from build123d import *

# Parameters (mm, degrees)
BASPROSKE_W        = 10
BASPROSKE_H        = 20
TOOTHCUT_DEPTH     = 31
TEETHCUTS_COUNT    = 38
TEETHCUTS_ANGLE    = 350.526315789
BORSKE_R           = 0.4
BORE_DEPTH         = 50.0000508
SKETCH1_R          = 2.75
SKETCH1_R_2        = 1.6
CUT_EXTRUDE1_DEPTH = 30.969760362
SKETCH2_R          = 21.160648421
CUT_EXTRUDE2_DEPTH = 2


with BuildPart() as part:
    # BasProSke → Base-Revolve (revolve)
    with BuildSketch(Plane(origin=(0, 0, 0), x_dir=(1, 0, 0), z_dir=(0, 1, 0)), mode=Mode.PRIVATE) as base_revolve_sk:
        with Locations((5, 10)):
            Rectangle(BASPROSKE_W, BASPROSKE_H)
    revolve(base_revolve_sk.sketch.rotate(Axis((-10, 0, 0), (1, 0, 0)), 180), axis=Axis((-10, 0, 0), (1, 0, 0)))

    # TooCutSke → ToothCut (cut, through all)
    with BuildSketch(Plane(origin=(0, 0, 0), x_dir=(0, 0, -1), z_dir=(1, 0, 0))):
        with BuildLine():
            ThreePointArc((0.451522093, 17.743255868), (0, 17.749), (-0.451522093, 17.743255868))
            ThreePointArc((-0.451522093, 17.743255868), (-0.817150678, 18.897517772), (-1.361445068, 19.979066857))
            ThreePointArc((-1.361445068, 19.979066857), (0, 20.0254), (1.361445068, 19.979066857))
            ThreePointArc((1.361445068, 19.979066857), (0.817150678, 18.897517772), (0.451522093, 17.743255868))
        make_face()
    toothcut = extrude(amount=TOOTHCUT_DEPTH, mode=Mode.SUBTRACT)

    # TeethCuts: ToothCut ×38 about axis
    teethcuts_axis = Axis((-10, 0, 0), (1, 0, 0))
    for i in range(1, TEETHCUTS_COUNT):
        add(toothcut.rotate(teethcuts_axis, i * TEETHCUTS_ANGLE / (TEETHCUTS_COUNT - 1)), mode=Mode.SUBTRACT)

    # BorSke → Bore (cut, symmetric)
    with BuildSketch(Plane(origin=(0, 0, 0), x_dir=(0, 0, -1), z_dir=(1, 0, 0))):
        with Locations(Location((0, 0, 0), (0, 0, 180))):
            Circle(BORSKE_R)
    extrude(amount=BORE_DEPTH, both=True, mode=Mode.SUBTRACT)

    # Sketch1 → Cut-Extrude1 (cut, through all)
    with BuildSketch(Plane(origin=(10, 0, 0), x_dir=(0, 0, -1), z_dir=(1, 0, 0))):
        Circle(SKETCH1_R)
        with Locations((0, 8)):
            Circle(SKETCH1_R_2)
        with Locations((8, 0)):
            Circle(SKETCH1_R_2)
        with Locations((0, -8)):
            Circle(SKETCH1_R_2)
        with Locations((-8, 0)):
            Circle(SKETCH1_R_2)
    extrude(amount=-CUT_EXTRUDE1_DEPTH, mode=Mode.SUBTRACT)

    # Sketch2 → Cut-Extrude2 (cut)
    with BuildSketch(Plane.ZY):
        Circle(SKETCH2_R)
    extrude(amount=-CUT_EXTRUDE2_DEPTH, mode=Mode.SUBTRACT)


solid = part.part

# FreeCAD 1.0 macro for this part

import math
import FreeCAD as App
import Part
import Sketcher

V = App.Vector
Q = App.Units.Quantity


def add_polygon(sketch, points):
    """Adds a closed chain of lines whose ends are joined by coincident constraints."""
    first, n = sketch.GeometryCount, len(points)
    for a, b in zip(points, points[1:] + points[:1]):
        sketch.addGeometry(Part.LineSegment(App.Vector(*a, 0), App.Vector(*b, 0)), False)
    for i in range(n):
        sketch.addConstraint(Sketcher.Constraint("Coincident", first + i, 2, first + (i + 1) % n, 1))

doc = App.newDocument("Part")
params = doc.addObject("Spreadsheet::Sheet", "Params")
for row, (alias, value) in enumerate([
    ("sketch1_width", "10 mm"),
    ("sketch1_height", "20 mm"),
    ("revolution_angle", "360 deg"),
    ("sketch2_radius", "7.6 mm"),
    ("sketch3_diameter", "0.8 mm"),
    ("pocket2_length", "100.000102 mm"),
    ("sketch4_diameter", "5.5 mm"),
    ("sketch4_diameter2", "3.2 mm"),
    ("pocket4_length", "2 mm"),
], start=1):
    params.set(f"A{row}", alias)
    params.set(f"B{row}", "=" + value)
    params.setAlias(f"B{row}", alias)

body = doc.addObject("PartDesign::Body", "Body")

sketch1 = body.newObject("Sketcher::SketchObject", "Sketch")
sketch1.AttachmentSupport = (doc.getObject("XZ_Plane"), [""])
sketch1.MapMode = "FlatFace"
add_polygon(sketch1, [(0, -20), (0, 0), (10, 0), (10, -20)])
sketch1.addConstraint([
    Sketcher.Constraint("Vertical", 0),
    Sketcher.Constraint("Horizontal", 1),
    Sketcher.Constraint("Vertical", 2),
    Sketcher.Constraint("Horizontal", 3),
    Sketcher.Constraint("Coincident", 0, 2, -1, 1),
    Sketcher.Constraint("DistanceX", 1, 1, 1, 2, Q("10 mm")),
    Sketcher.Constraint("DistanceY", 0, 1, 0, 2, Q("20 mm")),
])
sketch1.setExpression("Constraints[9]", "Params.sketch1_width")
sketch1.setExpression("Constraints[10]", "Params.sketch1_height")
revolution = body.newObject("PartDesign::Revolution", "Revolution")
revolution.Profile = sketch1
revolution.ReferenceAxis = (sketch1, ["H_Axis"])
revolution.setExpression("Angle", "Params.revolution_angle")

sketch2 = body.newObject("Sketcher::SketchObject", "Sketch001")
sketch2.AttachmentSupport = (doc.getObject("YZ_Plane"), [""])
sketch2.MapMode = "FlatFace"
sketch2.addGeometry([
    Part.ArcOfCircle(Part.Circle(V(0, 0, 0), V(0, 0, 1), 17.7), math.radians(-1.46), math.radians(1.46)),
    Part.ArcOfCircle(Part.Circle(V(16, -7.9, 0), V(0, 0, 1), 7.6), math.radians(58.72), math.radians(76.99)),
    Part.ArcOfCircle(Part.Circle(V(0, 0, 0), V(0, 0, 1), 20), math.radians(-3.9), math.radians(3.9)),
    Part.ArcOfCircle(Part.Circle(V(16, 7.9, 0), V(0, 0, 1), 7.6), math.radians(-76.99), math.radians(-58.72)),
], False)
sketch2.addConstraint([
    Sketcher.Constraint("Coincident", 0, 1, 1, 2),
    Sketcher.Constraint("Coincident", 1, 1, 2, 1),
    Sketcher.Constraint("Coincident", 2, 2, 3, 2),
    Sketcher.Constraint("Coincident", 3, 1, 0, 2),
    Sketcher.Constraint("Coincident", 0, 3, -1, 1),
    Sketcher.Constraint("Coincident", 2, 3, -1, 1),
    Sketcher.Constraint("Equal", 1, 3),
    Sketcher.Constraint("Symmetric", 1, 3, 3, 3, -1),
    Sketcher.Constraint("Radius", 1, Q("7.6 mm")),
    Sketcher.Constraint("Radius", 0, Q("17.749 mm")),
    Sketcher.Constraint("Radius", 2, Q("20.0254 mm")),
    Sketcher.Constraint("DistanceX", -1, 1, 1, 3, Q("16.032662 mm")),
    Sketcher.Constraint("DistanceY", 1, 3, -1, 1, Q("7.856511 mm")),
])
sketch2.setExpression("Constraints[8]", "Params.sketch2_radius")
pocket1 = body.newObject("PartDesign::Pocket", "Pocket")
pocket1.Profile = sketch2
pocket1.Type = "ThroughAll"
pocket1.Reversed = True
doc.recompute()

polarpattern = body.newObject("PartDesign::PolarPattern", "PolarPattern")
polarpattern.Originals = [pocket1]
polarpattern.Axis = (doc.getObject("X_Axis"), [""])
polarpattern.Angle = 360
polarpattern.Occurrences = 38
body.Tip = polarpattern

sketch3 = body.newObject("Sketcher::SketchObject", "Sketch002")
sketch3.AttachmentSupport = (doc.getObject("YZ_Plane"), [""])
sketch3.MapMode = "FlatFace"
sketch3.addGeometry(Part.Circle(V(0, 0, 0), V(0, 0, 1), 0.4), False)
sketch3.addConstraint([
    Sketcher.Constraint("Coincident", 0, 3, -1, 1),
    Sketcher.Constraint("Diameter", 0, Q("0.8 mm")),
])
sketch3.setExpression("Constraints[1]", "Params.sketch3_diameter")
pocket2 = body.newObject("PartDesign::Pocket", "Pocket001")
pocket2.Profile = sketch3
pocket2.setExpression("Length", "Params.pocket2_length")
pocket2.Midplane = True

sketch4 = body.newObject("Sketcher::SketchObject", "Sketch003")
sketch4.AttachmentSupport = (doc.getObject("YZ_Plane"), [""])
sketch4.MapMode = "FlatFace"
sketch4.AttachmentOffset = App.Placement(V(0, 0, 10), App.Rotation())
sketch4.addGeometry([
    Part.Circle(V(0, 0, 0), V(0, 0, 1), 2.8),
    Part.Circle(V(8, 0, 0), V(0, 0, 1), 1.6),
    Part.Circle(V(0, -8, 0), V(0, 0, 1), 1.6),
    Part.Circle(V(-8, 0, 0), V(0, 0, 1), 1.6),
    Part.Circle(V(0, 8, 0), V(0, 0, 1), 1.6),
], False)
sketch4.addConstraint([
    Sketcher.Constraint("Coincident", 0, 3, -1, 1),
    Sketcher.Constraint("Equal", 1, 2),
    Sketcher.Constraint("Equal", 2, 3),
    Sketcher.Constraint("Equal", 3, 4),
    Sketcher.Constraint("Symmetric", 1, 3, 3, 3, -1, 1),
    Sketcher.Constraint("Symmetric", 2, 3, 4, 3, -1, 1),
    Sketcher.Constraint("PointOnObject", 1, 3, -1),
    Sketcher.Constraint("PointOnObject", 2, 3, -2),
    Sketcher.Constraint("Diameter", 0, Q("5.5 mm")),
    Sketcher.Constraint("Diameter", 1, Q("3.2 mm")),
    Sketcher.Constraint("DistanceX", -1, 1, 1, 3, Q("8 mm")),
    Sketcher.Constraint("DistanceY", 2, 3, -1, 1, Q("8 mm")),
])
sketch4.setExpression("Constraints[8]", "Params.sketch4_diameter")
sketch4.setExpression("Constraints[9]", "Params.sketch4_diameter2")
pocket3 = body.newObject("PartDesign::Pocket", "Pocket002")
pocket3.Profile = sketch4
pocket3.Type = "ThroughAll"

sketch5 = body.newObject("Sketcher::SketchObject", "Sketch004")
sketch5.AttachmentSupport = (doc.getObject("YZ_Plane"), [""])
sketch5.MapMode = "FlatFace"
sketch5.addGeometry(Part.Circle(V(0, 0, 0), V(0, 0, 1), 21), False)
sketch5.addConstraint([
    Sketcher.Constraint("Coincident", 0, 3, -1, 1),
    Sketcher.Constraint("Diameter", 0, Q("42.321297 mm")),
])
pocket4 = body.newObject("PartDesign::Pocket", "Pocket003")
pocket4.Profile = sketch5
pocket4.setExpression("Length", "Params.pocket4_length")
pocket4.Reversed = True

doc.recompute()
